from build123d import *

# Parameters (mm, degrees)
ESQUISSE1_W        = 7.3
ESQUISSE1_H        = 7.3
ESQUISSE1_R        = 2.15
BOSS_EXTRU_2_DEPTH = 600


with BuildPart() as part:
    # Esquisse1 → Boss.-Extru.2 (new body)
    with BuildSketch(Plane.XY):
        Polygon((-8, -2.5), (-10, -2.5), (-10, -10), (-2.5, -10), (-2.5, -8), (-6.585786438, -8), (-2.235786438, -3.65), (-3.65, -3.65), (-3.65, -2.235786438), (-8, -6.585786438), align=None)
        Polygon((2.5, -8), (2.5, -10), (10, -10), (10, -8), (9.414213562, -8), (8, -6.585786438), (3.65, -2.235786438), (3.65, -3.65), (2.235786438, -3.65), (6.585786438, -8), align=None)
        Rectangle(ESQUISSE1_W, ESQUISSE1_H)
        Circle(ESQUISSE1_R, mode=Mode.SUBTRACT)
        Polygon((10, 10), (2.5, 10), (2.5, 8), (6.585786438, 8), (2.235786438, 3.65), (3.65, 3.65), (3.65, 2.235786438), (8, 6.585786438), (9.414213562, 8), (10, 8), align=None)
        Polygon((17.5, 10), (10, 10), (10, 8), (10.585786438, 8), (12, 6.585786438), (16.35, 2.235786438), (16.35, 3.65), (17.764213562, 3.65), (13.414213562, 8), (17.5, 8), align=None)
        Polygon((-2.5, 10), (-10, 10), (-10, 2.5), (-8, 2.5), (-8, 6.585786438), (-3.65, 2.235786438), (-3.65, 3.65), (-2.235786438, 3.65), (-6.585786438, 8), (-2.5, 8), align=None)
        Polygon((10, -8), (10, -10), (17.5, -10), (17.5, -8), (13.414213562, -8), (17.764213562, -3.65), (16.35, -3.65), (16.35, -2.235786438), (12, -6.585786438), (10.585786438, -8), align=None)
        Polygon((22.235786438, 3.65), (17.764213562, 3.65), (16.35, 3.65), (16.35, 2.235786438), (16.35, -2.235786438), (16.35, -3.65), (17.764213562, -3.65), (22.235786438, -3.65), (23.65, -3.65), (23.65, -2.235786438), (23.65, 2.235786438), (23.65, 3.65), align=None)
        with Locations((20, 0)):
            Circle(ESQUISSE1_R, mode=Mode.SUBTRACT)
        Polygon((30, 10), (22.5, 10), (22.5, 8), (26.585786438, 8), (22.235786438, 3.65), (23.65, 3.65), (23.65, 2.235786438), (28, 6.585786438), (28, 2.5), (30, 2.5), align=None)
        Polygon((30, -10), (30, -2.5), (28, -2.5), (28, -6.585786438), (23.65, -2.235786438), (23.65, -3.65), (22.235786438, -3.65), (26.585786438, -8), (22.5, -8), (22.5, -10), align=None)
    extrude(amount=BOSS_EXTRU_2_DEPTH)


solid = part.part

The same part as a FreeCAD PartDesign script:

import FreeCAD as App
import Part
import Sketcher

V = App.Vector
Q = App.Units.Quantity

doc = App.newDocument("Part")
body = doc.addObject("PartDesign::Body", "Body")

# Sketch on XY plane
sketch1 = body.newObject("Sketcher::SketchObject", "Sketch")
sketch1.AttachmentSupport = (doc.getObject("XY_Plane"), [""])
sketch1.MapMode = "FlatFace"
sketch1.addGeometry([
    Part.LineSegment(V(-8, -2.5, 0), V(-10, -2.5, 0)),  # 0
    Part.LineSegment(V(-10, -2.5, 0), V(-10, -10, 0)),  # 1
    Part.LineSegment(V(-10, -10, 0), V(-2.5, -10, 0)),  # 2
    Part.LineSegment(V(-2.5, -10, 0), V(-2.5, -8, 0)),  # 3
    Part.LineSegment(V(-2.5, -8, 0), V(-6.585786, -8, 0)),  # 4
    Part.LineSegment(V(-6.585786, -8, 0), V(-2.235786, -3.65, 0)),  # 5
    Part.LineSegment(V(-2.235786, -3.65, 0), V(2.235786, -3.65, 0)),  # 6
    Part.LineSegment(V(2.235786, -3.65, 0), V(6.585786, -8, 0)),  # 7
    Part.LineSegment(V(6.585786, -8, 0), V(2.5, -8, 0)),  # 8
    Part.LineSegment(V(2.5, -8, 0), V(2.5, -10, 0)),  # 9
    Part.LineSegment(V(2.5, -10, 0), V(17.5, -10, 0)),  # 10
    Part.LineSegment(V(17.5, -10, 0), V(17.5, -8, 0)),  # 11
    Part.LineSegment(V(17.5, -8, 0), V(13.414214, -8, 0)),  # 12
    Part.LineSegment(V(13.414214, -8, 0), V(17.764214, -3.65, 0)),  # 13
    Part.LineSegment(V(17.764214, -3.65, 0), V(22.235786, -3.65, 0)),  # 14
    Part.LineSegment(V(22.235786, -3.65, 0), V(26.585786, -8, 0)),  # 15
    Part.LineSegment(V(26.585786, -8, 0), V(22.5, -8, 0)),  # 16
    Part.LineSegment(V(22.5, -8, 0), V(22.5, -10, 0)),  # 17
    Part.LineSegment(V(22.5, -10, 0), V(30, -10, 0)),  # 18
    Part.LineSegment(V(30, -10, 0), V(30, -2.5, 0)),  # 19
    Part.LineSegment(V(30, -2.5, 0), V(28, -2.5, 0)),  # 20
    Part.LineSegment(V(28, -2.5, 0), V(28, -6.585786, 0)),  # 21
    Part.LineSegment(V(28, -6.585786, 0), V(23.65, -2.235786, 0)),  # 22
    Part.LineSegment(V(23.65, -2.235786, 0), V(23.65, 2.235786, 0)),  # 23
    Part.LineSegment(V(23.65, 2.235786, 0), V(28, 6.585786, 0)),  # 24
    Part.LineSegment(V(28, 6.585786, 0), V(28, 2.5, 0)),  # 25
    Part.LineSegment(V(28, 2.5, 0), V(30, 2.5, 0)),  # 26
    Part.LineSegment(V(30, 2.5, 0), V(30, 10, 0)),  # 27
    Part.LineSegment(V(30, 10, 0), V(22.5, 10, 0)),  # 28
    Part.LineSegment(V(22.5, 10, 0), V(22.5, 8, 0)),  # 29
    Part.LineSegment(V(22.5, 8, 0), V(26.585786, 8, 0)),  # 30
    Part.LineSegment(V(26.585786, 8, 0), V(22.235786, 3.65, 0)),  # 31
    Part.LineSegment(V(22.235786, 3.65, 0), V(17.764214, 3.65, 0)),  # 32
    Part.LineSegment(V(17.764214, 3.65, 0), V(13.414214, 8, 0)),  # 33
    Part.LineSegment(V(13.414214, 8, 0), V(17.5, 8, 0)),  # 34
    Part.LineSegment(V(17.5, 8, 0), V(17.5, 10, 0)),  # 35
    Part.LineSegment(V(17.5, 10, 0), V(2.5, 10, 0)),  # 36
    Part.LineSegment(V(2.5, 10, 0), V(2.5, 8, 0)),  # 37
    Part.LineSegment(V(2.5, 8, 0), V(6.585786, 8, 0)),  # 38
    Part.LineSegment(V(6.585786, 8, 0), V(2.235786, 3.65, 0)),  # 39
    Part.LineSegment(V(2.235786, 3.65, 0), V(-2.235786, 3.65, 0)),  # 40
    Part.LineSegment(V(-2.235786, 3.65, 0), V(-6.585786, 8, 0)),  # 41
    Part.LineSegment(V(-6.585786, 8, 0), V(-2.5, 8, 0)),  # 42
    Part.LineSegment(V(-2.5, 8, 0), V(-2.5, 10, 0)),  # 43
    Part.LineSegment(V(-2.5, 10, 0), V(-10, 10, 0)),  # 44
    Part.LineSegment(V(-10, 10, 0), V(-10, 2.5, 0)),  # 45
    Part.LineSegment(V(-10, 2.5, 0), V(-8, 2.5, 0)),  # 46
    Part.LineSegment(V(-8, 2.5, 0), V(-8, 6.585786, 0)),  # 47
    Part.LineSegment(V(-8, 6.585786, 0), V(-3.65, 2.235786, 0)),  # 48
    Part.LineSegment(V(-3.65, 2.235786, 0), V(-3.65, -2.235786, 0)),  # 49
    Part.LineSegment(V(-3.65, -2.235786, 0), V(-8, -6.585786, 0)),  # 50
    Part.LineSegment(V(-8, -6.585786, 0), V(-8, -2.5, 0)),  # 51
    Part.Circle(V(0, 0, 0), V(0, 0, 1), 2.15),  # 52
    Part.LineSegment(V(16.35, -2.235786, 0), V(10.585786, -8, 0)),  # 53
    Part.LineSegment(V(10.585786, -8, 0), V(9.414214, -8, 0)),  # 54
    Part.LineSegment(V(9.414214, -8, 0), V(3.65, -2.235786, 0)),  # 55
    Part.LineSegment(V(3.65, -2.235786, 0), V(3.65, 2.235786, 0)),  # 56
    Part.LineSegment(V(3.65, 2.235786, 0), V(9.414214, 8, 0)),  # 57
    Part.LineSegment(V(9.414214, 8, 0), V(10.585786, 8, 0)),  # 58
    Part.LineSegment(V(10.585786, 8, 0), V(16.35, 2.235786, 0)),  # 59
    Part.LineSegment(V(16.35, 2.235786, 0), V(16.35, -2.235786, 0)),  # 60
    Part.Circle(V(20, 0, 0), V(0, 0, 1), 2.15),  # 61
], False)
sketch1.addConstraint([
    Sketcher.Constraint("Coincident", 0, 2, 1, 1),
    Sketcher.Constraint("Coincident", 1, 2, 2, 1),
    Sketcher.Constraint("Coincident", 2, 2, 3, 1),
    Sketcher.Constraint("Coincident", 3, 2, 4, 1),
    Sketcher.Constraint("Coincident", 4, 2, 5, 1),
    Sketcher.Constraint("Coincident", 5, 2, 6, 1),
    Sketcher.Constraint("Coincident", 6, 2, 7, 1),
    Sketcher.Constraint("Coincident", 7, 2, 8, 1),
    Sketcher.Constraint("Coincident", 8, 2, 9, 1),
    Sketcher.Constraint("Coincident", 9, 2, 10, 1),
    Sketcher.Constraint("Coincident", 10, 2, 11, 1),
    Sketcher.Constraint("Coincident", 11, 2, 12, 1),
    Sketcher.Constraint("Coincident", 12, 2, 13, 1),
    Sketcher.Constraint("Coincident", 13, 2, 14, 1),
    Sketcher.Constraint("Coincident", 14, 2, 15, 1),
    Sketcher.Constraint("Coincident", 15, 2, 16, 1),
    Sketcher.Constraint("Coincident", 16, 2, 17, 1),
    Sketcher.Constraint("Coincident", 17, 2, 18, 1),
    Sketcher.Constraint("Coincident", 18, 2, 19, 1),
    Sketcher.Constraint("Coincident", 19, 2, 20, 1),
    Sketcher.Constraint("Coincident", 20, 2, 21, 1),
    Sketcher.Constraint("Coincident", 21, 2, 22, 1),
    Sketcher.Constraint("Coincident", 22, 2, 23, 1),
    Sketcher.Constraint("Coincident", 23, 2, 24, 1),
    Sketcher.Constraint("Coincident", 24, 2, 25, 1),
    Sketcher.Constraint("Coincident", 25, 2, 26, 1),
    Sketcher.Constraint("Coincident", 26, 2, 27, 1),
    Sketcher.Constraint("Coincident", 27, 2, 28, 1),
    Sketcher.Constraint("Coincident", 28, 2, 29, 1),
    Sketcher.Constraint("Coincident", 29, 2, 30, 1),
    Sketcher.Constraint("Coincident", 30, 2, 31, 1),
    Sketcher.Constraint("Coincident", 31, 2, 32, 1),
    Sketcher.Constraint("Coincident", 32, 2, 33, 1),
    Sketcher.Constraint("Coincident", 33, 2, 34, 1),
    Sketcher.Constraint("Coincident", 34, 2, 35, 1),
    Sketcher.Constraint("Coincident", 35, 2, 36, 1),
    Sketcher.Constraint("Coincident", 36, 2, 37, 1),
    Sketcher.Constraint("Coincident", 37, 2, 38, 1),
    Sketcher.Constraint("Coincident", 38, 2, 39, 1),
    Sketcher.Constraint("Coincident", 39, 2, 40, 1),
    Sketcher.Constraint("Coincident", 40, 2, 41, 1),
    Sketcher.Constraint("Coincident", 41, 2, 42, 1),
    Sketcher.Constraint("Coincident", 42, 2, 43, 1),
    Sketcher.Constraint("Coincident", 43, 2, 44, 1),
    Sketcher.Constraint("Coincident", 44, 2, 45, 1),
    Sketcher.Constraint("Coincident", 45, 2, 46, 1),
    Sketcher.Constraint("Coincident", 46, 2, 47, 1),
    Sketcher.Constraint("Coincident", 47, 2, 48, 1),
    Sketcher.Constraint("Coincident", 48, 2, 49, 1),
    Sketcher.Constraint("Coincident", 49, 2, 50, 1),
    Sketcher.Constraint("Coincident", 50, 2, 51, 1),
    Sketcher.Constraint("Coincident", 51, 2, 0, 1),
    Sketcher.Constraint("Coincident", 53, 2, 54, 1),
    Sketcher.Constraint("Coincident", 54, 2, 55, 1),
    Sketcher.Constraint("Coincident", 55, 2, 56, 1),
    Sketcher.Constraint("Coincident", 56, 2, 57, 1),
    Sketcher.Constraint("Coincident", 57, 2, 58, 1),
    Sketcher.Constraint("Coincident", 58, 2, 59, 1),
    Sketcher.Constraint("Coincident", 59, 2, 60, 1),
    Sketcher.Constraint("Coincident", 60, 2, 53, 1),
    Sketcher.Constraint("Horizontal", 0),
    Sketcher.Constraint("Vertical", 1),
    Sketcher.Constraint("Horizontal", 2),
    Sketcher.Constraint("Vertical", 3),
    Sketcher.Constraint("Horizontal", 4),
    Sketcher.Constraint("Horizontal", 6),
    Sketcher.Constraint("Horizontal", 8),
    Sketcher.Constraint("Vertical", 9),
    Sketcher.Constraint("Horizontal", 10),
    Sketcher.Constraint("Vertical", 11),
    Sketcher.Constraint("Horizontal", 12),
    Sketcher.Constraint("Horizontal", 14),
    Sketcher.Constraint("Horizontal", 16),
    Sketcher.Constraint("Vertical", 17),
    Sketcher.Constraint("Horizontal", 18),
    Sketcher.Constraint("Vertical", 19),
    Sketcher.Constraint("Horizontal", 20),
    Sketcher.Constraint("Vertical", 21),
    Sketcher.Constraint("Vertical", 23),
    Sketcher.Constraint("Vertical", 25),
    Sketcher.Constraint("Horizontal", 26),
    Sketcher.Constraint("Vertical", 27),
    Sketcher.Constraint("Horizontal", 28),
    Sketcher.Constraint("Vertical", 29),
    Sketcher.Constraint("Horizontal", 30),
    Sketcher.Constraint("Horizontal", 32),
    Sketcher.Constraint("Horizontal", 34),
    Sketcher.Constraint("Vertical", 35),
    Sketcher.Constraint("Horizontal", 36),
    Sketcher.Constraint("Vertical", 37),
    Sketcher.Constraint("Horizontal", 38),
    Sketcher.Constraint("Horizontal", 40),
    Sketcher.Constraint("Horizontal", 42),
    Sketcher.Constraint("Vertical", 43),
    Sketcher.Constraint("Horizontal", 44),
    Sketcher.Constraint("Vertical", 45),
    Sketcher.Constraint("Horizontal", 46),
    Sketcher.Constraint("Vertical", 47),
    Sketcher.Constraint("Vertical", 49),
    Sketcher.Constraint("Vertical", 51),
    Sketcher.Constraint("Horizontal", 54),
    Sketcher.Constraint("Vertical", 56),
    Sketcher.Constraint("Horizontal", 58),
    Sketcher.Constraint("Vertical", 60),
    Sketcher.Constraint("Coincident", 52, 3, -1, 1),
    Sketcher.Constraint("Equal", 52, 61),
    Sketcher.Constraint("Symmetric", 2, 2, 36, 2, -1, 1),
    Sketcher.Constraint("Symmetric", 4, 2, 38, 2, -1, 1),
    Sketcher.Constraint("Symmetric", 5, 2, 39, 2, -1, 1),
    Sketcher.Constraint("Symmetric", 7, 2, 41, 2, -1, 1),
    Sketcher.Constraint("Symmetric", 9, 2, 43, 2, -1, 1),
    Sketcher.Constraint("Symmetric", 48, 2, 55, 2, -1, 1),
    Sketcher.Constraint("Symmetric", 4, 2, 7, 2, -2),
    Sketcher.Constraint("Symmetric", 2, 2, 9, 2, -2),
    Sketcher.Constraint("Symmetric", 21, 2, 24, 2, -1),
    Sketcher.Constraint("Symmetric", 19, 2, 26, 2, -1),
    Sketcher.Constraint("Symmetric", 17, 2, 28, 2, -1),
    Sketcher.Constraint("Symmetric", 15, 2, 30, 2, -1),
    Sketcher.Constraint("Symmetric", 14, 2, 31, 2, -1),
    Sketcher.Constraint("Symmetric", 12, 2, 33, 2, -1),
    Sketcher.Constraint("Symmetric", 0, 2, 45, 2, -1),
    Sketcher.Constraint("Symmetric", 47, 2, 50, 2, -1),
    Sketcher.Constraint("Symmetric", 54, 2, 57, 2, -1),
    Sketcher.Constraint("PointOnObject", 61, 3, -1),
    Sketcher.Constraint("Perpendicular", 5, 7),
    Sketcher.Constraint("Perpendicular", 7, 13),
    Sketcher.Constraint("Perpendicular", 13, 15),
    Sketcher.Constraint("Parallel", 15, 22),
    Sketcher.Constraint("Perpendicular", 22, 24),
    Sketcher.Constraint("Parallel", 24, 31),
    Sketcher.Constraint("Perpendicular", 31, 33),
    Sketcher.Constraint("Perpendicular", 39, 41),
    Sketcher.Constraint("Parallel", 41, 48),
    Sketcher.Constraint("Perpendicular", 48, 50),
    Sketcher.Constraint("Parallel", 50, 53),
    Sketcher.Constraint("Perpendicular", 53, 55),
    Sketcher.Constraint("Perpendicular", 55, 57),
    Sketcher.Constraint("Perpendicular", 57, 59),
    Sketcher.Constraint("Horizontal", 8, 2, 11, 2),
    Sketcher.Constraint("Horizontal", 6, 2, 13, 2),
    Sketcher.Constraint("Horizontal", 12, 2, 15, 2),
    Sketcher.Constraint("Horizontal", 10, 2, 17, 2),
    Sketcher.Constraint("Horizontal", 0, 2, 19, 2),
    Sketcher.Constraint("Horizontal", 24, 2, 47, 2),
    Sketcher.Constraint("Horizontal", 23, 2, 48, 2),
    Sketcher.Constraint("Horizontal", 16, 2, 53, 2),
    Sketcher.Constraint("Horizontal", 56, 2, 59, 2),
    Sketcher.Constraint("Horizontal", 55, 2, 60, 2),
    Sketcher.Constraint("Vertical", 11, 2, 34, 2),
    Sketcher.Constraint("Equal", 8, 12),
    Sketcher.Constraint("Equal", 6, 14),
    Sketcher.Constraint("Equal", 12, 16),
    Sketcher.Constraint("Equal", 2, 18),
    Sketcher.Constraint("Equal", 0, 20),
    Sketcher.Constraint("Equal", 44, 1),
    Sketcher.Constraint("Equal", 46, 3),
    Sketcher.Constraint("Equal", 42, 21),
    Sketcher.Constraint("Equal", 40, 23),
    Sketcher.Constraint("Equal", 15, 22),
    Sketcher.Constraint("Diameter", 52, Q("4.3 mm")),
    Sketcher.Constraint("DistanceX", 0, 2, 0, 1, Q("2 mm")),
    Sketcher.Constraint("DistanceX", 10, 1, 10, 2, Q("15 mm")),
    Sketcher.Constraint("DistanceX", 2, 1, 2, 2, Q("7.5 mm")),
    Sketcher.Constraint("DistanceX", -1, 1, 61, 3, Q("20 mm")),
    Sketcher.Constraint("DistanceX", 0, 2, -1, 1, Q("10 mm")),
    Sketcher.Constraint("DistanceY", 5, 2, -1, 1, Q("3.65 mm")),
    Sketcher.Constraint("DistanceX", -1, 1, 59, 2, Q("16.35 mm")),
    Sketcher.Constraint("Distance", 53, Q("8.151829 mm")),
])
pad1 = body.newObject("PartDesign::Pad", "Pad")
pad1.Profile = sketch1
pad1.Length = 600

doc.recompute()
